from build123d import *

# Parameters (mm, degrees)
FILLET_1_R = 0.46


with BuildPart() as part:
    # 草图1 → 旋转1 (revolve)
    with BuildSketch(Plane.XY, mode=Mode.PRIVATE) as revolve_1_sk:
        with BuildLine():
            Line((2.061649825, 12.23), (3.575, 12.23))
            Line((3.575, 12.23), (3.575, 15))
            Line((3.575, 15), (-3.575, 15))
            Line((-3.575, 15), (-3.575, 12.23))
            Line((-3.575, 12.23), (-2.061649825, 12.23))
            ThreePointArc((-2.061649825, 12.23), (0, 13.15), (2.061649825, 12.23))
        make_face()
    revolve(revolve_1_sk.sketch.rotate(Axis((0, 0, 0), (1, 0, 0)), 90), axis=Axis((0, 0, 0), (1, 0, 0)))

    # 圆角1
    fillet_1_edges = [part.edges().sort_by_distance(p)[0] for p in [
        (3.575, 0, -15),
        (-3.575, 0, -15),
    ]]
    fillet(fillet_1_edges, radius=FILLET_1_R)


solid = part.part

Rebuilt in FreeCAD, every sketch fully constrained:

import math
import FreeCAD as App
import Part
import Sketcher


def edges_at(feature, points):
    """Names of the edges that pass closest to the given points."""
    edges = feature.Shape.Edges
    near = lambda p: min(range(len(edges)), key=lambda i: edges[i].distToShape(Part.Vertex(*p))[0])
    return sorted({f"Edge{near(p) + 1}" for p in points})

doc = App.newDocument("Part")
params = doc.addObject("Spreadsheet::Sheet", "Params")
for row, (alias, value) in enumerate([
    ("sketch1_radius", "2.77 mm"),
    ("sketch1_width", "7.15 mm"),
    ("sketch1_height", "2.77 mm"),
    ("revolution_angle", "360 deg"),
    ("fillet_radius", "0.46 mm"),
], start=1):
    params.set(f"A{row}", alias)
    params.set(f"B{row}", "=" + value)
    params.setAlias(f"B{row}", alias)

body = doc.addObject("PartDesign::Body", "Body")

sketch1 = doc.addObject("Sketcher::SketchObject", "Sketch")
body.addObject(sketch1)
sketch1.AttachmentSupport = (doc.XY_Plane, [""])
sketch1.MapMode = "FlatFace"
sketch1.addGeometry(Part.LineSegment(App.Vector(2.06165, 12.23, 0), App.Vector(3.575, 12.23, 0)), False)
sketch1.addGeometry(Part.LineSegment(App.Vector(3.575, 12.23, 0), App.Vector(3.575, 15, 0)), False)
sketch1.addGeometry(Part.LineSegment(App.Vector(3.575, 15, 0), App.Vector(-3.575, 15, 0)), False)
sketch1.addGeometry(Part.LineSegment(App.Vector(-3.575, 15, 0), App.Vector(-3.575, 12.23, 0)), False)
sketch1.addGeometry(Part.LineSegment(App.Vector(-3.575, 12.23, 0), App.Vector(-2.06165, 12.23, 0)), False)
sketch1.addGeometry(Part.ArcOfCircle(Part.Circle(App.Vector(0, 10.38, 0), App.Vector(0, 0, 1), 2.77), math.radians(41.902885), math.radians(138.097115)), False)
sketch1.addConstraint(Sketcher.Constraint("Coincident", 0, 2, 1, 1))
sketch1.addConstraint(Sketcher.Constraint("Coincident", 1, 2, 2, 1))
sketch1.addConstraint(Sketcher.Constraint("Coincident", 2, 2, 3, 1))
sketch1.addConstraint(Sketcher.Constraint("Coincident", 3, 2, 4, 1))
sketch1.addConstraint(Sketcher.Constraint("Coincident", 4, 2, 5, 2))
sketch1.addConstraint(Sketcher.Constraint("Coincident", 5, 1, 0, 1))
sketch1.addConstraint(Sketcher.Constraint("Horizontal", 0))
sketch1.addConstraint(Sketcher.Constraint("Vertical", 1))
sketch1.addConstraint(Sketcher.Constraint("Horizontal", 2))
sketch1.addConstraint(Sketcher.Constraint("Vertical", 3))
sketch1.addConstraint(Sketcher.Constraint("Horizontal", 4))
sketch1.addConstraint(Sketcher.Constraint("Symmetric", 0, 2, 3, 2, -2))
sketch1.addConstraint(Sketcher.Constraint("PointOnObject", 5, 3, -2))
sketch1.addConstraint(Sketcher.Constraint("Radius", 5, 2.77))
sketch1.addConstraint(Sketcher.Constraint("DistanceY", -1, 1, 1, 2, 15.0))
sketch1.addConstraint(Sketcher.Constraint("DistanceX", 2, 2, 2, 1, 7.15))
sketch1.addConstraint(Sketcher.Constraint("DistanceY", 1, 1, 1, 2, 2.77))
sketch1.addConstraint(Sketcher.Constraint("DistanceY", -1, 1, 5, 3, 10.38))
sketch1.setExpression("Constraints[13]", "Params.sketch1_radius")
sketch1.setExpression("Constraints[15]", "Params.sketch1_width")
sketch1.setExpression("Constraints[16]", "Params.sketch1_height")
revolution = doc.addObject("PartDesign::Revolution", "Revolution")
body.addObject(revolution)
revolution.Profile = sketch1
revolution.ReferenceAxis = (sketch1, ["H_Axis"])
revolution.setExpression("Angle", "Params.revolution_angle")
doc.recompute()

fillet = doc.addObject("PartDesign::Fillet", "Fillet")
body.addObject(fillet)
fillet.Base = (revolution, edges_at(revolution, [(3.575, 0, -15), (-3.575, 0, -15)]))
fillet.setExpression("Radius", "Params.fillet_radius")

doc.recompute()
